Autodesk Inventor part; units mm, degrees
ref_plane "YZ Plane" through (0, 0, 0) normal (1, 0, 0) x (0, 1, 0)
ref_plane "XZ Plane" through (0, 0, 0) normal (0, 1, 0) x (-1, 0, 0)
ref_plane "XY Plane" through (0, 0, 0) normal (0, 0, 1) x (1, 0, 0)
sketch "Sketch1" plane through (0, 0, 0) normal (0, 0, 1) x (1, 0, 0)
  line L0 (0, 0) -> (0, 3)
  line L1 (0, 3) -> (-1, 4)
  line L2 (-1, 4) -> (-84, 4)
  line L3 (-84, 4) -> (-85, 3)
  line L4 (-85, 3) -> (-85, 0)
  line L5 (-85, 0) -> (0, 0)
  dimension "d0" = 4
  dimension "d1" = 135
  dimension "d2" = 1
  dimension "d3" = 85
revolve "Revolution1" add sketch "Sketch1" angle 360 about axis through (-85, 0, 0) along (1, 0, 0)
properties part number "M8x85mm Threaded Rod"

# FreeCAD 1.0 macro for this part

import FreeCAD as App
import Part
import Sketcher
from FreeCAD import Vector

doc = App.newDocument("Part")
body = doc.addObject("PartDesign::Body", "Body")

sketch1 = body.newObject("Sketcher::SketchObject", "Sketch")
sketch1.AttachmentSupport = (doc.getObject("XY_Plane"), [""])
sketch1.MapMode = "FlatFace"
sketch1.addGeometry([
    Part.LineSegment(Vector(-85, 0, 0), Vector(0, 0, 0)),
    Part.LineSegment(Vector(0, 0, 0), Vector(0, 3, 0)),
    Part.LineSegment(Vector(0, 3, 0), Vector(-1, 4, 0)),
    Part.LineSegment(Vector(-1, 4, 0), Vector(-84, 4, 0)),
    Part.LineSegment(Vector(-84, 4, 0), Vector(-85, 3, 0)),
    Part.LineSegment(Vector(-85, 3, 0), Vector(-85, 0, 0)),
], False)
sketch1.addConstraint([
    Sketcher.Constraint("Coincident", 0, 2, 1, 1),
    Sketcher.Constraint("Coincident", 1, 2, 2, 1),
    Sketcher.Constraint("Coincident", 2, 2, 3, 1),
    Sketcher.Constraint("Coincident", 3, 2, 4, 1),
    Sketcher.Constraint("Coincident", 4, 2, 5, 1),
    Sketcher.Constraint("Coincident", 5, 2, 0, 1),
    Sketcher.Constraint("Horizontal", 0),
    Sketcher.Constraint("Vertical", 1),
    Sketcher.Constraint("Horizontal", 3),
    Sketcher.Constraint("Vertical", 5),
    Sketcher.Constraint("Coincident", 0, 2, -1, 1),
    Sketcher.Constraint("Perpendicular", 2, 4),
    Sketcher.Constraint("Horizontal", 1, 2, 4, 2),
    Sketcher.Constraint("Equal", 2, 4),
    Sketcher.Constraint("DistanceX", 0, 1, 0, 2, 85.0),
    Sketcher.Constraint("DistanceX", 2, 2, -1, 1, 1.0),
    Sketcher.Constraint("DistanceY", -1, 1, 2, 2, 4.0),
])
revolution = body.newObject("PartDesign::Revolution", "Revolution")
revolution.Profile = sketch1
revolution.ReferenceAxis = (sketch1, ["H_Axis"])
revolution.Angle = 360

doc.recompute()
